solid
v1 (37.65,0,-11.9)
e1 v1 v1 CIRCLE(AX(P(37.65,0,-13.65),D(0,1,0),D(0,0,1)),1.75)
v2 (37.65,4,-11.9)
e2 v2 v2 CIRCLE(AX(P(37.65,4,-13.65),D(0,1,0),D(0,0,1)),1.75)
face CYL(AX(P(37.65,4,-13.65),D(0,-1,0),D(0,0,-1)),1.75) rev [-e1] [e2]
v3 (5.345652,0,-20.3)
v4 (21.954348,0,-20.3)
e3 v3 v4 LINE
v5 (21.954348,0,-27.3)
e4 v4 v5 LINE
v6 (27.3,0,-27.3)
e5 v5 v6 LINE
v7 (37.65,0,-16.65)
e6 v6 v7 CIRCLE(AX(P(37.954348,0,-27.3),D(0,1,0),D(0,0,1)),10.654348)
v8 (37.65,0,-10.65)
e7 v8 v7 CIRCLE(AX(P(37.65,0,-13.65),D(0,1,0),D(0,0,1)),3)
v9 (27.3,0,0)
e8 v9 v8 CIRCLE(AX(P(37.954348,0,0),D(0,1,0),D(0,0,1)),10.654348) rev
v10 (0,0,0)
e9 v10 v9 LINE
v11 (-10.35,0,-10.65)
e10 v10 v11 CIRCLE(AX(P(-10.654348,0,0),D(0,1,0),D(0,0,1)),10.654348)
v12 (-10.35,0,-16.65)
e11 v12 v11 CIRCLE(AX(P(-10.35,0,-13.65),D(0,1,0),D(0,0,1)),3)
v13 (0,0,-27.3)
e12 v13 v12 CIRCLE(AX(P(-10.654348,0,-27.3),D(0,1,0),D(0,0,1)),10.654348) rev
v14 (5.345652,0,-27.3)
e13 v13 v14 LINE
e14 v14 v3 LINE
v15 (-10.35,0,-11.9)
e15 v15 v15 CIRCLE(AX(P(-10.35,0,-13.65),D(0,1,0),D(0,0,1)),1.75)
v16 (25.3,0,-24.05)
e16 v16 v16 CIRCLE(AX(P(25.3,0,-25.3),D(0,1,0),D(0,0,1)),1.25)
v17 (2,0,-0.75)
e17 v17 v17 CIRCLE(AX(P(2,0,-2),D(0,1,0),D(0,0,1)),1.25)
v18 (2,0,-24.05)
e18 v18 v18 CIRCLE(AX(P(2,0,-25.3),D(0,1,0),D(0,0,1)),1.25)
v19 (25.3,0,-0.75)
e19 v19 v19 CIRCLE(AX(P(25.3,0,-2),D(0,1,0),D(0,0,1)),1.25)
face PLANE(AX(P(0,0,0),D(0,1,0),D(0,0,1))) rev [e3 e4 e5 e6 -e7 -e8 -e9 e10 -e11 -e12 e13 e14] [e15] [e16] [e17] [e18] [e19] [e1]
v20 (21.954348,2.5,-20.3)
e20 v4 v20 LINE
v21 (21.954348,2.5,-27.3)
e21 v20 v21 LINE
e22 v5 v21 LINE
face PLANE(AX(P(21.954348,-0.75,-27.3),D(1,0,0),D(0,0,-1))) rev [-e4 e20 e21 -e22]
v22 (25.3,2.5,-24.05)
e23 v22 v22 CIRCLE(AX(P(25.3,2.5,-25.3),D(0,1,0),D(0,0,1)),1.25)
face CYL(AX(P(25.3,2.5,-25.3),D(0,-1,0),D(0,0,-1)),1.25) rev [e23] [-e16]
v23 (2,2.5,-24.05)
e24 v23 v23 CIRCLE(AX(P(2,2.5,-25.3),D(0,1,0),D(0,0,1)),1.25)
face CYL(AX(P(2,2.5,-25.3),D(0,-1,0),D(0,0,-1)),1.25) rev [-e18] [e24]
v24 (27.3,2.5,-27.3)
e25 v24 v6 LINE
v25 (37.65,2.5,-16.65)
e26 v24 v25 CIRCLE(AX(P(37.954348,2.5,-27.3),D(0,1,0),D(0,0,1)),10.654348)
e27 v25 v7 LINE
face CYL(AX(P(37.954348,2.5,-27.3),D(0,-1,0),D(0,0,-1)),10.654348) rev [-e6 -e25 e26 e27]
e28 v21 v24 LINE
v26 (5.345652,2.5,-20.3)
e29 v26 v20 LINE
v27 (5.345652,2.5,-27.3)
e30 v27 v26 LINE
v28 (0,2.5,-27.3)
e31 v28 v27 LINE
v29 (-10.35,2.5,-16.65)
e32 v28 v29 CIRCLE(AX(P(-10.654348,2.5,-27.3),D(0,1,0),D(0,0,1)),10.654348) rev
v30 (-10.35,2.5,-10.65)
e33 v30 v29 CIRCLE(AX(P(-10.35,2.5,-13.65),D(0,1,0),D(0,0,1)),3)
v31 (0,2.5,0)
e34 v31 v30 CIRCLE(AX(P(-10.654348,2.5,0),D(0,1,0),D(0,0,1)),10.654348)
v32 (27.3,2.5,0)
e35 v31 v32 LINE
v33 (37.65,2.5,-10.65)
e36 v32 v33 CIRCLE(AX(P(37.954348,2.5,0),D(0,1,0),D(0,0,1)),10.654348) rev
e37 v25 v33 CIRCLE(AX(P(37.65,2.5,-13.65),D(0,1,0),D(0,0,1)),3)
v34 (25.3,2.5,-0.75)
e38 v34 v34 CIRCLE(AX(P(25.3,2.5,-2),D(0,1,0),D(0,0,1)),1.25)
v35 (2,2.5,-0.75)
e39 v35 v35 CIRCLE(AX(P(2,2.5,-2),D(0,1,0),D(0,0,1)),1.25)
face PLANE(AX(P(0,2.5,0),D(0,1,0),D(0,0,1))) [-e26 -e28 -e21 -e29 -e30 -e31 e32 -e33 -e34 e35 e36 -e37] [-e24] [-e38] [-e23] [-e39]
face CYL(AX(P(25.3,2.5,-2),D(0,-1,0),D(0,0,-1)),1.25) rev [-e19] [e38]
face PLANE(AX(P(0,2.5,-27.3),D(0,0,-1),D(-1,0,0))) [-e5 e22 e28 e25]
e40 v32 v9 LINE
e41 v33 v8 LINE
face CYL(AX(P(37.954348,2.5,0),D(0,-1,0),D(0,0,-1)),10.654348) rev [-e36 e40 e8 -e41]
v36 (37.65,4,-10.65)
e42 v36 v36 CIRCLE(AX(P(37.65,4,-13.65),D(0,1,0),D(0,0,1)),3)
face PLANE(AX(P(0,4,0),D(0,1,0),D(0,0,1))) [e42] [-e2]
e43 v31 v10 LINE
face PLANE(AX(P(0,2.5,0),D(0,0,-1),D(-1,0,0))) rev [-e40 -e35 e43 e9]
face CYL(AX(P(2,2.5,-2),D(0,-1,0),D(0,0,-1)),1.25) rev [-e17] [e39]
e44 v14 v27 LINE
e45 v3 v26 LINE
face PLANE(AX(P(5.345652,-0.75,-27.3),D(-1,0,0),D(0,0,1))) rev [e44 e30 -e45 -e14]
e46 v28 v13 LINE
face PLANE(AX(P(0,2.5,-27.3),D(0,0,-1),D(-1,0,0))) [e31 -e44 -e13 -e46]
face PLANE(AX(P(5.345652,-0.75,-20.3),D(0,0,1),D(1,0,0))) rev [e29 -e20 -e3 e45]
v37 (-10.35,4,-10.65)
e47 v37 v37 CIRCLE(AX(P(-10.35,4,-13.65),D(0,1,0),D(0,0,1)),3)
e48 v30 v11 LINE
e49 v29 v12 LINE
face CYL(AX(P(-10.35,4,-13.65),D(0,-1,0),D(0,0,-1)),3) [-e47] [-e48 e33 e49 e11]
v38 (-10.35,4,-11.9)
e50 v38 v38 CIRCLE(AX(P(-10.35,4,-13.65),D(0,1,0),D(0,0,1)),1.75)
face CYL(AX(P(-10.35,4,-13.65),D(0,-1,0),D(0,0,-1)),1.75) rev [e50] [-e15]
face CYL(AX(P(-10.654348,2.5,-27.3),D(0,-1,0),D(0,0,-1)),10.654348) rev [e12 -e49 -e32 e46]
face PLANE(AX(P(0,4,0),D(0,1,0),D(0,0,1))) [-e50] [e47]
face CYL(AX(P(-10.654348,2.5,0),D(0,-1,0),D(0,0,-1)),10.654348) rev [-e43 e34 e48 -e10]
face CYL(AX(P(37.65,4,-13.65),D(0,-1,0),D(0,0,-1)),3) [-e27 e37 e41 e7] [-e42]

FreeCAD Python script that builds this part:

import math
import FreeCAD as App
import Part
import Sketcher
from FreeCAD import Vector


def add_polygon(sketch, points):
    """Adds a closed chain of lines whose ends are joined by coincident constraints."""
    first, n = sketch.GeometryCount, len(points)
    for a, b in zip(points, points[1:] + points[:1]):
        sketch.addGeometry(Part.LineSegment(App.Vector(*a, 0), App.Vector(*b, 0)), False)
    for i in range(n):
        sketch.addConstraint(Sketcher.Constraint("Coincident", first + i, 2, first + (i + 1) % n, 1))

doc = App.newDocument("Part")
body = doc.addObject("PartDesign::Body", "Body")

sketch1 = body.newObject("Sketcher::SketchObject", "Sketch")
sketch1.AttachmentSupport = (doc.getObject("XZ_Plane"), [""])
sketch1.MapMode = "FlatFace"
sketch1.addGeometry(Part.LineSegment(Vector(27.3, -27.3, 0), Vector(0, -27.3, 0)), False)
sketch1.addGeometry(Part.ArcOfCircle(Part.Circle(Vector(-10.654348, -27.3, 0), Vector(0, 0, 1), 10.654348), math.radians(0), math.radians(88.363089)), False)
sketch1.addGeometry(Part.ArcOfCircle(Part.Circle(Vector(-10.35, -13.65, 0), Vector(0, 0, 1), 3), math.radians(-90), math.radians(90)), False)
sketch1.addGeometry(Part.ArcOfCircle(Part.Circle(Vector(-10.654348, 0, 0), Vector(0, 0, 1), 10.654348), math.radians(-88.363089), math.radians(0)), False)
sketch1.addGeometry(Part.LineSegment(Vector(0, 0, 0), Vector(27.3, 0, 0)), False)
sketch1.addGeometry(Part.ArcOfCircle(Part.Circle(Vector(37.954348, 0, 0), Vector(0, 0, 1), 10.654348), math.radians(180), math.radians(268.363089)), False)
sketch1.addGeometry(Part.ArcOfCircle(Part.Circle(Vector(37.65, -13.65, 0), Vector(0, 0, 1), 3), math.radians(90), math.radians(270)), False)
sketch1.addGeometry(Part.ArcOfCircle(Part.Circle(Vector(37.954348, -27.3, 0), Vector(0, 0, 1), 10.654348), math.radians(91.636911), math.radians(180)), False)
sketch1.addGeometry(Part.Circle(Vector(2, -2, 0), Vector(0, 0, 1), 1.25), False)
sketch1.addGeometry(Part.Circle(Vector(25.3, -2, 0), Vector(0, 0, 1), 1.25), False)
sketch1.addGeometry(Part.Circle(Vector(2, -25.3, 0), Vector(0, 0, 1), 1.25), False)
sketch1.addGeometry(Part.Circle(Vector(25.3, -25.3, 0), Vector(0, 0, 1), 1.25), False)
sketch1.addConstraint(Sketcher.Constraint("Coincident", 0, 2, 1, 1))
sketch1.addConstraint(Sketcher.Constraint("Coincident", 1, 2, 2, 1))
sketch1.addConstraint(Sketcher.Constraint("Coincident", 2, 2, 3, 1))
sketch1.addConstraint(Sketcher.Constraint("Coincident", 3, 2, 4, 1))
sketch1.addConstraint(Sketcher.Constraint("Coincident", 4, 2, 5, 1))
sketch1.addConstraint(Sketcher.Constraint("Coincident", 5, 2, 6, 1))
sketch1.addConstraint(Sketcher.Constraint("Coincident", 6, 2, 7, 1))
sketch1.addConstraint(Sketcher.Constraint("Coincident", 7, 2, 0, 1))
sketch1.addConstraint(Sketcher.Constraint("Horizontal", 0))
sketch1.addConstraint(Sketcher.Constraint("Horizontal", 4))
sketch1.addConstraint(Sketcher.Constraint("Coincident", 3, 2, -1, 1))
sketch1.addConstraint(Sketcher.Constraint("Equal", 1, 3))
sketch1.addConstraint(Sketcher.Constraint("Equal", 3, 5))
sketch1.addConstraint(Sketcher.Constraint("Equal", 2, 6))
sketch1.addConstraint(Sketcher.Constraint("Equal", 5, 7))
sketch1.addConstraint(Sketcher.Constraint("Equal", 8, 9))
sketch1.addConstraint(Sketcher.Constraint("Equal", 9, 10))
sketch1.addConstraint(Sketcher.Constraint("Equal", 10, 11))
sketch1.addConstraint(Sketcher.Constraint("PointOnObject", 3, 3, -1))
sketch1.addConstraint(Sketcher.Constraint("PointOnObject", 5, 3, -1))
sketch1.addConstraint(Sketcher.Constraint("PointOnObject", 0, 2, -2))
sketch1.addConstraint(Sketcher.Constraint("Horizontal", 2, 3, 6, 3))
sketch1.addConstraint(Sketcher.Constraint("Horizontal", 1, 3, 7, 3))
sketch1.addConstraint(Sketcher.Constraint("Horizontal", 8, 3, 9, 3))
sketch1.addConstraint(Sketcher.Constraint("Horizontal", 10, 3, 11, 3))
sketch1.addConstraint(Sketcher.Constraint("Horizontal", 7, 3, 0, 2))
sketch1.addConstraint(Sketcher.Constraint("Vertical", 5, 3, 7, 3))
sketch1.addConstraint(Sketcher.Constraint("Vertical", 8, 3, 10, 3))
sketch1.addConstraint(Sketcher.Constraint("Vertical", 9, 3, 11, 3))
sketch1.addConstraint(Sketcher.Constraint("Vertical", 2, 3, 1, 2))
sketch1.addConstraint(Sketcher.Constraint("Vertical", 1, 2, 2, 2))
sketch1.addConstraint(Sketcher.Constraint("Vertical", 6, 3, 5, 2))
sketch1.addConstraint(Sketcher.Constraint("Radius", 2, 3.0))
sketch1.addConstraint(Sketcher.Constraint("Diameter", 8, 2.5))
sketch1.addConstraint(Sketcher.Constraint("DistanceX", 0, 2, 0, 1, 27.3))
sketch1.addConstraint(Sketcher.Constraint("DistanceX", -1, 1, 8, 3, 2.0))
sketch1.addConstraint(Sketcher.Constraint("DistanceY", 8, 3, -1, 1, 2.0))
sketch1.addConstraint(Sketcher.Constraint("DistanceX", 2, 3, 6, 3, 48.0))
sketch1.addConstraint(Sketcher.Constraint("DistanceY", 1, 3, 10, 3, 2.0))
sketch1.addConstraint(Sketcher.Constraint("DistanceX", 9, 3, 4, 2, 2.0))
sketch1.addConstraint(Sketcher.Constraint("DistanceY", 1, 3, -1, 1, 27.3))
pad1 = body.newObject("PartDesign::Pad", "Pad")
pad1.Profile = sketch1
pad1.Length = 2.5
pad1.Reversed = True

sketch2 = body.newObject("Sketcher::SketchObject", "Sketch001")
sketch2.AttachmentSupport = (doc.getObject("XZ_Plane"), [""])
sketch2.MapMode = "FlatFace"
sketch2.addGeometry(Part.Circle(Vector(-10.35, -13.65, 0), Vector(0, 0, 1), 3), False)
sketch2.addGeometry(Part.Circle(Vector(-10.35, -13.65, 0), Vector(0, 0, 1), 1.75), False)
sketch2.addGeometry(Part.Circle(Vector(37.65, -13.65, 0), Vector(0, 0, 1), 3), False)
sketch2.addGeometry(Part.Circle(Vector(37.65, -13.65, 0), Vector(0, 0, 1), 1.75), False)
sketch2.addConstraint(Sketcher.Constraint("Coincident", 1, 3, 0, 3))
sketch2.addConstraint(Sketcher.Constraint("Coincident", 3, 3, 2, 3))
sketch2.addConstraint(Sketcher.Constraint("Equal", 0, 2))
sketch2.addConstraint(Sketcher.Constraint("Equal", 1, 3))
sketch2.addConstraint(Sketcher.Constraint("Horizontal", 1, 3, 2, 3))
sketch2.addConstraint(Sketcher.Constraint("Diameter", 0, 6.0))
sketch2.addConstraint(Sketcher.Constraint("Diameter", 1, 3.5))
sketch2.addConstraint(Sketcher.Constraint("DistanceX", 0, 3, 2, 3, 48.0))
sketch2.addConstraint(Sketcher.Constraint("DistanceX", 0, 3, -1, 1, 10.35))
sketch2.addConstraint(Sketcher.Constraint("DistanceY", 0, 3, -1, 1, 13.65))
pad2 = body.newObject("PartDesign::Pad", "Pad001")
pad2.Profile = sketch2
pad2.Length = 4
pad2.Reversed = True

sketch3 = body.newObject("Sketcher::SketchObject", "Sketch002")
sketch3.AttachmentSupport = (doc.getObject("XZ_Plane"), [""])
sketch3.MapMode = "FlatFace"
sketch3.AttachmentOffset = App.Placement(Vector(0, 0, -2.5), App.Rotation())
add_polygon(sketch3, [(5.345652, -27.3), (5.345652, -20.3), (21.954348, -20.3), (21.954348, -27.3)])
sketch3.addConstraint(Sketcher.Constraint("Vertical", 0))
sketch3.addConstraint(Sketcher.Constraint("Horizontal", 1))
sketch3.addConstraint(Sketcher.Constraint("Vertical", 2))
sketch3.addConstraint(Sketcher.Constraint("Horizontal", 3))
sketch3.addConstraint(Sketcher.Constraint("DistanceY", 0, 1, 0, 2, 7.0))
sketch3.addConstraint(Sketcher.Constraint("DistanceY", 0, 2, -1, 1, 20.3))
sketch3.addConstraint(Sketcher.Constraint("DistanceX", 1, 1, 1, 2, 16.608696))
sketch3.addConstraint(Sketcher.Constraint("DistanceX", -1, 1, 0, 2, 5.345652))
pocket1 = body.newObject("PartDesign::Pocket", "Pocket")
pocket1.Profile = sketch3
pocket1.Length = 3.25
pocket1.Reversed = True

doc.recompute()
